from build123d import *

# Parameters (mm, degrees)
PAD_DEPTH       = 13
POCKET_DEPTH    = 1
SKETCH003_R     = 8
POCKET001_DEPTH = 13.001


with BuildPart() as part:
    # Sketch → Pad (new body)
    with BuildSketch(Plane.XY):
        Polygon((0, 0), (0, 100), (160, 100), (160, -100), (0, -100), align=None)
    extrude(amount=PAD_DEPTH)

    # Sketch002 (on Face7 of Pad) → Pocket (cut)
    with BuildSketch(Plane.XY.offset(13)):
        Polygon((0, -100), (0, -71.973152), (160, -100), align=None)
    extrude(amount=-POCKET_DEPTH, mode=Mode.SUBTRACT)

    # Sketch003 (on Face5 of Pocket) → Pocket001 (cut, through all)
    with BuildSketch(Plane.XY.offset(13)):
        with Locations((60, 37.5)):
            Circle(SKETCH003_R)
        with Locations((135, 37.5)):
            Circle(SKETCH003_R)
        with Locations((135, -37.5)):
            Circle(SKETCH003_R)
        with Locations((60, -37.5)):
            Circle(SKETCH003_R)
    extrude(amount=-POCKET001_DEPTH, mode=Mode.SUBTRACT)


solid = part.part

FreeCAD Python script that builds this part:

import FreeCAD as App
import Part
import Sketcher

V = App.Vector


def add_polygon(sketch, points):
    """Adds a closed chain of lines whose ends are joined by coincident constraints."""
    first, n = sketch.GeometryCount, len(points)
    for a, b in zip(points, points[1:] + points[:1]):
        sketch.addGeometry(Part.LineSegment(App.Vector(*a, 0), App.Vector(*b, 0)), False)
    for i in range(n):
        sketch.addConstraint(Sketcher.Constraint("Coincident", first + i, 2, first + (i + 1) % n, 1))

doc = App.newDocument("Part")
body = doc.addObject("PartDesign::Body", "Body")

sketch1 = body.newObject("Sketcher::SketchObject", "Sketch")
sketch1.AttachmentSupport = (doc.getObject("XY_Plane"), [""])
sketch1.MapMode = "FlatFace"
add_polygon(sketch1, [(0, 100), (0, -100), (160, -100), (160, 100)])
sketch1.addConstraint(Sketcher.Constraint("Vertical", 0))
sketch1.addConstraint(Sketcher.Constraint("Horizontal", 1))
sketch1.addConstraint(Sketcher.Constraint("Vertical", 2))
sketch1.addConstraint(Sketcher.Constraint("Horizontal", 3))
sketch1.addConstraint(Sketcher.Constraint("Symmetric", 0, 2, 3, 2, -1, 1))
sketch1.addConstraint(Sketcher.Constraint("DistanceX", 1, 1, 1, 2, 160.0))
sketch1.addConstraint(Sketcher.Constraint("DistanceY", 0, 2, 0, 1, 200.0))
pad1 = body.newObject("PartDesign::Pad", "Pad")
pad1.Profile = sketch1
pad1.Length = 13

sketch2 = body.newObject("Sketcher::SketchObject", "Sketch001")
sketch2.AttachmentSupport = (doc.getObject("XY_Plane"), [""])
sketch2.MapMode = "FlatFace"
sketch2.AttachmentOffset = App.Placement(V(0, 0, 13), App.Rotation())
add_polygon(sketch2, [(0, -72), (0, -100), (160, -100)])
sketch2.addConstraint(Sketcher.Constraint("Vertical", 0))
sketch2.addConstraint(Sketcher.Constraint("Horizontal", 1))
sketch2.addConstraint(Sketcher.Constraint("PointOnObject", 0, 2, -2))
sketch2.addConstraint(Sketcher.Constraint("DistanceX", 1, 1, 1, 2, 160.0))
sketch2.addConstraint(Sketcher.Constraint("DistanceY", 0, 2, -1, 1, 100.0))
sketch2.addConstraint(Sketcher.Constraint("DistanceY", 0, 2, 0, 1, 28.026848))
pocket1 = body.newObject("PartDesign::Pocket", "Pocket")
pocket1.Profile = sketch2
pocket1.Length = 1

sketch3 = body.newObject("Sketcher::SketchObject", "Sketch002")
sketch3.AttachmentSupport = (doc.getObject("XY_Plane"), [""])
sketch3.MapMode = "FlatFace"
sketch3.AttachmentOffset = App.Placement(V(0, 0, 13), App.Rotation())
sketch3.addGeometry(Part.Circle(V(60, 38, 0), V(0, 0, 1), 8), False)
sketch3.addGeometry(Part.Circle(V(135, 38, 0), V(0, 0, 1), 8), False)
sketch3.addGeometry(Part.Circle(V(135, -38, 0), V(0, 0, 1), 8), False)
sketch3.addGeometry(Part.Circle(V(60, -38, 0), V(0, 0, 1), 8), False)
sketch3.addConstraint(Sketcher.Constraint("Equal", 0, 1))
sketch3.addConstraint(Sketcher.Constraint("Equal", 1, 2))
sketch3.addConstraint(Sketcher.Constraint("Equal", 2, 3))
sketch3.addConstraint(Sketcher.Constraint("Symmetric", 1, 3, 2, 3, -1))
sketch3.addConstraint(Sketcher.Constraint("Symmetric", 0, 3, 3, 3, -1))
sketch3.addConstraint(Sketcher.Constraint("Horizontal", 0, 3, 1, 3))
sketch3.addConstraint(Sketcher.Constraint("Diameter", 0, 16.0))
sketch3.addConstraint(Sketcher.Constraint("DistanceX", -1, 1, 0, 3, 60.0))
sketch3.addConstraint(Sketcher.Constraint("DistanceX", -1, 1, 1, 3, 135.0))
sketch3.addConstraint(Sketcher.Constraint("DistanceY", 2, 3, 1, 3, 75.0))
pocket2 = body.newObject("PartDesign::Pocket", "Pocket001")
pocket2.Profile = sketch3
pocket2.Type = "ThroughAll"

doc.recompute()
